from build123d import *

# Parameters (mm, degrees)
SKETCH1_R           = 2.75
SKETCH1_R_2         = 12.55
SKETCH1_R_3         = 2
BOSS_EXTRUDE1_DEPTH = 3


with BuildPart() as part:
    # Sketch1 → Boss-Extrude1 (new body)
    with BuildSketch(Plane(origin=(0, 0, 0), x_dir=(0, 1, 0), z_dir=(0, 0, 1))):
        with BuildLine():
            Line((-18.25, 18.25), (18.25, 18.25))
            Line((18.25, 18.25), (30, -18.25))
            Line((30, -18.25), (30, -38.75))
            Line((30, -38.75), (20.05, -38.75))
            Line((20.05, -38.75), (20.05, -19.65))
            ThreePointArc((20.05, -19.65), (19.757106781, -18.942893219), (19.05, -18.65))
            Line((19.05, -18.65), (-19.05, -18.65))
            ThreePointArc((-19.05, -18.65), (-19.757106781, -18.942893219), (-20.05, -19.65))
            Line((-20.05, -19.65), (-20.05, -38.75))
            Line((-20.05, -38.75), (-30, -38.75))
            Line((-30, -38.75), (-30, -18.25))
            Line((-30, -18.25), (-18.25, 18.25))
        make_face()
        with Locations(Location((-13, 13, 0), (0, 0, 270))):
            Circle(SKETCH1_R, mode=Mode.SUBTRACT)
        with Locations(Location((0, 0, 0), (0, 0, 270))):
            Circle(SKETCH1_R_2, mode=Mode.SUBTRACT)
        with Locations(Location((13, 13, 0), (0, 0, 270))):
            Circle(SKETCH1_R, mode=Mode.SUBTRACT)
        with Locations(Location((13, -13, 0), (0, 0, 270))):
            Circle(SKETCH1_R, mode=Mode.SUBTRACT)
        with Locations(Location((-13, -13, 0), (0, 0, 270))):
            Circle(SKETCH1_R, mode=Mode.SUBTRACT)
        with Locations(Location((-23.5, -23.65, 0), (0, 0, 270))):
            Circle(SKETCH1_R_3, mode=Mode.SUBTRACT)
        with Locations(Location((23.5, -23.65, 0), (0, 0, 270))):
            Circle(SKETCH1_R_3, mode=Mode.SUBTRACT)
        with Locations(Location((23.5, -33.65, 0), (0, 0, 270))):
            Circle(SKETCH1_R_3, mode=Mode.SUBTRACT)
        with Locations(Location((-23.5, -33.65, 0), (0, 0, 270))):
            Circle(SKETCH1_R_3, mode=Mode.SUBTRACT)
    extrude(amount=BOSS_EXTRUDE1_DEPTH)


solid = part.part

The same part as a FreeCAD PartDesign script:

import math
import FreeCAD as App
import Part
import Sketcher
Q = App.Units.Quantity

doc = App.newDocument("Part")
body = doc.addObject("PartDesign::Body", "Body")

sketch1 = doc.addObject("Sketcher::SketchObject", "Sketch")
body.addObject(sketch1)
sketch1.AttachmentSupport = (doc.XY_Plane, [""])
sketch1.MapMode = "FlatFace"
sketch1.addGeometry([
    Part.LineSegment(App.Vector(-18.25, 18.25, 0), App.Vector(-18.25, -18.25, 0)),
    Part.LineSegment(App.Vector(-18.25, -18.25, 0), App.Vector(18.25, -30, 0)),
    Part.LineSegment(App.Vector(18.25, -30, 0), App.Vector(38.75, -30, 0)),
    Part.LineSegment(App.Vector(38.75, -30, 0), App.Vector(38.75, -20.05, 0)),
    Part.LineSegment(App.Vector(38.75, -20.05, 0), App.Vector(19.65, -20.05, 0)),
    Part.ArcOfCircle(Part.Circle(App.Vector(19.65, -19.05, 0), App.Vector(0, 0, 1), 1), math.radians(-180), math.radians(-90)),
    Part.LineSegment(App.Vector(18.65, -19.05, 0), App.Vector(18.65, 19.05, 0)),
    Part.ArcOfCircle(Part.Circle(App.Vector(19.65, 19.05, 0), App.Vector(0, 0, 1), 1), math.radians(90), math.radians(180)),
    Part.LineSegment(App.Vector(19.65, 20.05, 0), App.Vector(38.75, 20.05, 0)),
    Part.LineSegment(App.Vector(38.75, 20.05, 0), App.Vector(38.75, 30, 0)),
    Part.LineSegment(App.Vector(38.75, 30, 0), App.Vector(18.25, 30, 0)),
    Part.LineSegment(App.Vector(18.25, 30, 0), App.Vector(-18.25, 18.25, 0)),
    Part.Circle(App.Vector(33.65, 23.5, 0), App.Vector(0, 0, 1), 2),
    Part.Circle(App.Vector(23.65, 23.5, 0), App.Vector(0, 0, 1), 2),
    Part.Circle(App.Vector(13, 13, 0), App.Vector(0, 0, 1), 2.75),
    Part.Circle(App.Vector(33.65, -23.5, 0), App.Vector(0, 0, 1), 2),
    Part.Circle(App.Vector(23.65, -23.5, 0), App.Vector(0, 0, 1), 2),
    Part.Circle(App.Vector(13, -13, 0), App.Vector(0, 0, 1), 2.75),
    Part.Circle(App.Vector(-13, 13, 0), App.Vector(0, 0, 1), 2.75),
    Part.Circle(App.Vector(0, 0, 0), App.Vector(0, 0, 1), 12.55),
    Part.Circle(App.Vector(-13, -13, 0), App.Vector(0, 0, 1), 2.75),
], False)
sketch1.addConstraint([
    Sketcher.Constraint("Coincident", 0, 2, 1, 1),
    Sketcher.Constraint("Coincident", 1, 2, 2, 1),
    Sketcher.Constraint("Coincident", 2, 2, 3, 1),
    Sketcher.Constraint("Coincident", 3, 2, 4, 1),
    Sketcher.Constraint("Tangent", 4, 2, 5, 2),
    Sketcher.Constraint("Tangent", 5, 1, 6, 1),
    Sketcher.Constraint("Tangent", 6, 2, 7, 2),
    Sketcher.Constraint("Tangent", 7, 1, 8, 1),
    Sketcher.Constraint("Coincident", 8, 2, 9, 1),
    Sketcher.Constraint("Coincident", 9, 2, 10, 1),
    Sketcher.Constraint("Coincident", 10, 2, 11, 1),
    Sketcher.Constraint("Coincident", 11, 2, 0, 1),
    Sketcher.Constraint("Vertical", 0),
    Sketcher.Constraint("Horizontal", 2),
    Sketcher.Constraint("Vertical", 3),
    Sketcher.Constraint("Horizontal", 4),
    Sketcher.Constraint("Vertical", 6),
    Sketcher.Constraint("Horizontal", 8),
    Sketcher.Constraint("Vertical", 9),
    Sketcher.Constraint("Horizontal", 10),
    Sketcher.Constraint("Coincident", 19, 3, -1, 1),
    Sketcher.Constraint("Equal", 5, 7),
    Sketcher.Constraint("Equal", 12, 13),
    Sketcher.Constraint("Equal", 13, 15),
    Sketcher.Constraint("Equal", 15, 16),
    Sketcher.Constraint("Equal", 14, 17),
    Sketcher.Constraint("Equal", 17, 18),
    Sketcher.Constraint("Equal", 18, 20),
    Sketcher.Constraint("Symmetric", 17, 3, 18, 3, -1, 1),
    Sketcher.Constraint("Symmetric", 14, 3, 20, 3, -1, 1),
    Sketcher.Constraint("Symmetric", 14, 3, 18, 3, -2),
    Sketcher.Constraint("Symmetric", 12, 3, 15, 3, -1),
    Sketcher.Constraint("Symmetric", 13, 3, 16, 3, -1),
    Sketcher.Constraint("Symmetric", 3, 2, 8, 2, -1),
    Sketcher.Constraint("Symmetric", 1, 2, 10, 2, -1),
    Sketcher.Constraint("Horizontal", 12, 3, 13, 3),
    Sketcher.Constraint("Equal", 1, 11),
    Sketcher.Constraint("Diameter", 12, Q("4 mm")),
    Sketcher.Constraint("Radius", 5, Q("1 mm")),
    Sketcher.Constraint("Diameter", 14, Q("5.5 mm")),
    Sketcher.Constraint("Diameter", 19, Q("25.1 mm")),
    Sketcher.Constraint("DistanceX", 2, 1, 2, 2, Q("20.5 mm")),
    Sketcher.Constraint("DistanceX", 4, 2, 4, 1, Q("19.1 mm")),
    Sketcher.Constraint("DistanceY", 0, 2, 0, 1, Q("36.5 mm")),
    Sketcher.Constraint("DistanceY", 6, 1, 6, 2, Q("38.1 mm")),
    Sketcher.Constraint("DistanceX", -1, 1, 14, 3, Q("13 mm")),
    Sketcher.Constraint("DistanceY", -1, 1, 14, 3, Q("13 mm")),
    Sketcher.Constraint("DistanceY", 1, 2, -1, 1, Q("30 mm")),
    Sketcher.Constraint("DistanceX", 7, 3, 12, 3, Q("14 mm")),
    Sketcher.Constraint("DistanceX", 7, 3, 13, 3, Q("4 mm")),
    Sketcher.Constraint("DistanceY", 15, 3, 12, 3, Q("47 mm")),
    Sketcher.Constraint("DistanceX", 0, 2, 5, 3, Q("37.9 mm")),
    Sketcher.Constraint("DistanceX", -1, 1, 5, 3, Q("19.65 mm")),
])
pad1 = doc.addObject("PartDesign::Pad", "Pad")
body.addObject(pad1)
pad1.Profile = sketch1
pad1.Length = 3

doc.recompute()
